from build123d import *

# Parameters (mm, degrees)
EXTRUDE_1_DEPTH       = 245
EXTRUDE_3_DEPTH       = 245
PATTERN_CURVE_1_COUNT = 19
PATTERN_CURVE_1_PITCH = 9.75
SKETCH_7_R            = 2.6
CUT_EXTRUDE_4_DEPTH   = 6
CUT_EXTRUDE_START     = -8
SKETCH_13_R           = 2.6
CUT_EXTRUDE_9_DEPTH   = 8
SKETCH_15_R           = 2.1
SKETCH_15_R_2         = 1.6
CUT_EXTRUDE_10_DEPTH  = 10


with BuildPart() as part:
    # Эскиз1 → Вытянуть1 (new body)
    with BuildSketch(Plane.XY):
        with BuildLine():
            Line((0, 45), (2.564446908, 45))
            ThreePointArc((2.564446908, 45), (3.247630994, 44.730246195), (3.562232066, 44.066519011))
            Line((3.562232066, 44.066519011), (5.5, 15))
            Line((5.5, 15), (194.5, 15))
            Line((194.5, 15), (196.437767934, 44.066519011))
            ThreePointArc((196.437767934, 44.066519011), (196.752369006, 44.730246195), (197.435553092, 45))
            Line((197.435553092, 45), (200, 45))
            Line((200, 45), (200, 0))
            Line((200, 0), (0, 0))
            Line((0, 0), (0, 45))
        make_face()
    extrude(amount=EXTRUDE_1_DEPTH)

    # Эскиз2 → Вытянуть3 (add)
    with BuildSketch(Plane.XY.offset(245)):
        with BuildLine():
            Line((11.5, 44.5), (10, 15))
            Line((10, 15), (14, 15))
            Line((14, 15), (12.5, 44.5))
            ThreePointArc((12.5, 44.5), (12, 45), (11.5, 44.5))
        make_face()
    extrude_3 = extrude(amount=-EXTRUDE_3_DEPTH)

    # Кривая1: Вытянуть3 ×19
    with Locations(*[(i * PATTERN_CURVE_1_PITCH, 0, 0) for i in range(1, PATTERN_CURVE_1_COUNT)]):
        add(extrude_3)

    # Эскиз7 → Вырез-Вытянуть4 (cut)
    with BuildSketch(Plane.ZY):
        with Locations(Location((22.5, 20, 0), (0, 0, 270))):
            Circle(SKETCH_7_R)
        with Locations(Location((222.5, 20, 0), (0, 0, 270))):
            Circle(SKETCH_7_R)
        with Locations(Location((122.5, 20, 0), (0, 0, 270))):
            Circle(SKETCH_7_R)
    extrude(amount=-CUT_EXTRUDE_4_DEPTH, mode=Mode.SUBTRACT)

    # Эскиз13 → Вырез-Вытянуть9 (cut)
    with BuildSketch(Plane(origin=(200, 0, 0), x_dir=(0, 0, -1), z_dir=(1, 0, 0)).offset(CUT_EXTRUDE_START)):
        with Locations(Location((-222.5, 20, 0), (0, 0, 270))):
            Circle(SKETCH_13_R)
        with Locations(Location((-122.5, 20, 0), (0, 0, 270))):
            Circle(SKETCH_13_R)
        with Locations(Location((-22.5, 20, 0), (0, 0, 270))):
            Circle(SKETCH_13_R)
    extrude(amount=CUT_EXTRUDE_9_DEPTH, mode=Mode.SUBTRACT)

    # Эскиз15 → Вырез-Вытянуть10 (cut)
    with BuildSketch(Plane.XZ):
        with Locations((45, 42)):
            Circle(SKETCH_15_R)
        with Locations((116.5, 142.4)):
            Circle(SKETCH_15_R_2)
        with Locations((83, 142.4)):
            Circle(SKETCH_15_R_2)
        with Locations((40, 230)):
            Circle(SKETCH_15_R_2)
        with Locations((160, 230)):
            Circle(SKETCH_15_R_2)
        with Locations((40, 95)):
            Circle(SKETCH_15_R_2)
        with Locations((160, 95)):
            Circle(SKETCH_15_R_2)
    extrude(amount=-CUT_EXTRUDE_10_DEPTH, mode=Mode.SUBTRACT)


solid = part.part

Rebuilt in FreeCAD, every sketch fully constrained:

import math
import FreeCAD as App
import Part
import Sketcher
Q = App.Units.Quantity

doc = App.newDocument("Part")
body = doc.addObject("PartDesign::Body", "Body")

# Sketch on XY plane
sketch1 = body.newObject("Sketcher::SketchObject", "Sketch")
sketch1.AttachmentSupport = (doc.getObject("XY_Plane"), [""])
sketch1.MapMode = "FlatFace"
sketch1.addGeometry(Part.LineSegment(App.Vector(2.6, 45, 0), App.Vector(0, 45, 0)), False)
sketch1.addGeometry(Part.LineSegment(App.Vector(0, 45, 0), App.Vector(0, 0, 0)), False)
sketch1.addGeometry(Part.LineSegment(App.Vector(0, 0, 0), App.Vector(200, 0, 0)), False)
sketch1.addGeometry(Part.LineSegment(App.Vector(200, 0, 0), App.Vector(200, 45, 0)), False)
sketch1.addGeometry(Part.LineSegment(App.Vector(200, 45, 0), App.Vector(197.4, 45, 0)), False)
sketch1.addGeometry(Part.ArcOfCircle(Part.Circle(App.Vector(197.4, 44, 0), App.Vector(0, 0, 1), 1), math.radians(90), math.radians(176)), False)
sketch1.addGeometry(Part.LineSegment(App.Vector(196.4, 44.1, 0), App.Vector(194.5, 15, 0)), False)
sketch1.addGeometry(Part.LineSegment(App.Vector(194.5, 15, 0), App.Vector(5.5, 15, 0)), False)
sketch1.addGeometry(Part.LineSegment(App.Vector(5.5, 15, 0), App.Vector(3.6, 44.1, 0)), False)
sketch1.addGeometry(Part.ArcOfCircle(Part.Circle(App.Vector(2.6, 44, 0), App.Vector(0, 0, 1), 1), math.radians(4), math.radians(90)), False)
sketch1.addConstraint(Sketcher.Constraint("Coincident", 0, 2, 1, 1))
sketch1.addConstraint(Sketcher.Constraint("Coincident", 1, 2, 2, 1))
sketch1.addConstraint(Sketcher.Constraint("Coincident", 2, 2, 3, 1))
sketch1.addConstraint(Sketcher.Constraint("Coincident", 3, 2, 4, 1))
sketch1.addConstraint(Sketcher.Constraint("Tangent", 4, 2, 5, 1))
sketch1.addConstraint(Sketcher.Constraint("Tangent", 5, 2, 6, 1))
sketch1.addConstraint(Sketcher.Constraint("Coincident", 6, 2, 7, 1))
sketch1.addConstraint(Sketcher.Constraint("Coincident", 7, 2, 8, 1))
sketch1.addConstraint(Sketcher.Constraint("Tangent", 8, 2, 9, 1))
sketch1.addConstraint(Sketcher.Constraint("Tangent", 9, 2, 0, 1))
sketch1.addConstraint(Sketcher.Constraint("Horizontal", 0))
sketch1.addConstraint(Sketcher.Constraint("Vertical", 1))
sketch1.addConstraint(Sketcher.Constraint("Horizontal", 2))
sketch1.addConstraint(Sketcher.Constraint("Vertical", 3))
sketch1.addConstraint(Sketcher.Constraint("Horizontal", 4))
sketch1.addConstraint(Sketcher.Constraint("Horizontal", 7))
sketch1.addConstraint(Sketcher.Constraint("Coincident", 1, 2, -1, 1))
sketch1.addConstraint(Sketcher.Constraint("Equal", 5, 9))
sketch1.addConstraint(Sketcher.Constraint("Horizontal", 5, 3, 9, 3))
sketch1.addConstraint(Sketcher.Constraint("Horizontal", 5, 2, 8, 2))
sketch1.addConstraint(Sketcher.Constraint("Equal", 0, 4))
sketch1.addConstraint(Sketcher.Constraint("Radius", 5, Q("1 mm")))
sketch1.addConstraint(Sketcher.Constraint("DistanceX", 2, 1, 2, 2, Q("200 mm")))
sketch1.addConstraint(Sketcher.Constraint("DistanceX", 7, 2, 7, 1, Q("189 mm")))
sketch1.addConstraint(Sketcher.Constraint("DistanceY", 1, 2, 1, 1, Q("45 mm")))
sketch1.addConstraint(Sketcher.Constraint("DistanceY", -1, 1, 6, 2, Q("15 mm")))
sketch1.addConstraint(Sketcher.Constraint("Distance", 6, Q("29.13104 mm")))
pad1 = body.newObject("PartDesign::Pad", "Pad")
pad1.Profile = sketch1
pad1.Length = 245

# Sketch on XY plane
sketch2 = body.newObject("Sketcher::SketchObject", "Sketch001")
sketch2.AttachmentSupport = (doc.getObject("XY_Plane"), [""])
sketch2.MapMode = "FlatFace"
sketch2.AttachmentOffset = App.Placement(App.Vector(0, 0, 245), App.Rotation())
sketch2.addGeometry(Part.LineSegment(App.Vector(11.5, 44.5, 0), App.Vector(10, 15, 0)), False)
sketch2.addGeometry(Part.LineSegment(App.Vector(10, 15, 0), App.Vector(14, 15, 0)), False)
sketch2.addGeometry(Part.LineSegment(App.Vector(14, 15, 0), App.Vector(12.5, 44.5, 0)), False)
sketch2.addGeometry(Part.ArcOfCircle(Part.Circle(App.Vector(12, 44.5, 0), App.Vector(0, 0, 1), 0.5), math.radians(0), math.radians(180)), False)
sketch2.addConstraint(Sketcher.Constraint("Coincident", 0, 2, 1, 1))
sketch2.addConstraint(Sketcher.Constraint("Coincident", 1, 2, 2, 1))
sketch2.addConstraint(Sketcher.Constraint("Coincident", 2, 2, 3, 1))
sketch2.addConstraint(Sketcher.Constraint("Coincident", 3, 2, 0, 1))
sketch2.addConstraint(Sketcher.Constraint("Horizontal", 1))
sketch2.addConstraint(Sketcher.Constraint("Horizontal", 3, 3, 2, 2))
sketch2.addConstraint(Sketcher.Constraint("Horizontal", 2, 2, 3, 2))
sketch2.addConstraint(Sketcher.Constraint("Equal", 0, 2))
sketch2.addConstraint(Sketcher.Constraint("Radius", 3, Q("0.5 mm")))
sketch2.addConstraint(Sketcher.Constraint("DistanceX", 1, 1, 1, 2, Q("4 mm")))
sketch2.addConstraint(Sketcher.Constraint("DistanceX", -1, 1, 3, 3, Q("12 mm")))
sketch2.addConstraint(Sketcher.Constraint("DistanceY", -1, 1, 0, 2, Q("15 mm")))
sketch2.addConstraint(Sketcher.Constraint("DistanceY", -1, 1, 3, 3, Q("44.5 mm")))
pad2 = body.newObject("PartDesign::Pad", "Pad001")
pad2.Profile = sketch2
pad2.Length = 245
pad2.Reversed = True
doc.recompute()

linearpattern = body.newObject("PartDesign::LinearPattern", "LinearPattern")
linearpattern.Originals = [pad2]
linearpattern.Direction = (doc.getObject("X_Axis"), [""])
linearpattern.Mode = "offset"
linearpattern.Offset = 9.75
linearpattern.Occurrences = 19
body.Tip = linearpattern

# Sketch on YZ plane
sketch3 = body.newObject("Sketcher::SketchObject", "Sketch002")
sketch3.AttachmentSupport = (doc.getObject("YZ_Plane"), [""])
sketch3.MapMode = "FlatFace"
sketch3.addGeometry(Part.Circle(App.Vector(20, 22.5, 0), App.Vector(0, 0, 1), 2.6), False)
sketch3.addGeometry(Part.Circle(App.Vector(20, 222.5, 0), App.Vector(0, 0, 1), 2.6), False)
sketch3.addGeometry(Part.Circle(App.Vector(20, 122.5, 0), App.Vector(0, 0, 1), 2.6), False)
sketch3.addConstraint(Sketcher.Constraint("Equal", 0, 1))
sketch3.addConstraint(Sketcher.Constraint("Equal", 1, 2))
sketch3.addConstraint(Sketcher.Constraint("Vertical", 0, 3, 1, 3))
sketch3.addConstraint(Sketcher.Constraint("Vertical", 1, 3, 2, 3))
sketch3.addConstraint(Sketcher.Constraint("Diameter", 0, Q("5.2 mm")))
sketch3.addConstraint(Sketcher.Constraint("DistanceX", -1, 1, 0, 3, Q("20 mm")))
sketch3.addConstraint(Sketcher.Constraint("DistanceY", 0, 3, 1, 3, Q("200 mm")))
sketch3.addConstraint(Sketcher.Constraint("DistanceY", 0, 3, 2, 3, Q("100 mm")))
sketch3.addConstraint(Sketcher.Constraint("DistanceY", -1, 1, 0, 3, Q("22.5 mm")))
pocket1 = body.newObject("PartDesign::Pocket", "Pocket")
pocket1.Profile = sketch3
pocket1.Length = 6
pocket1.Reversed = True

# Sketch on YZ plane
sketch4 = body.newObject("Sketcher::SketchObject", "Sketch003")
sketch4.AttachmentSupport = (doc.getObject("YZ_Plane"), [""])
sketch4.MapMode = "FlatFace"
sketch4.AttachmentOffset = App.Placement(App.Vector(0, 0, 192), App.Rotation())
sketch4.addGeometry(Part.Circle(App.Vector(20, 222.5, 0), App.Vector(0, 0, 1), 2.6), False)
sketch4.addGeometry(Part.Circle(App.Vector(20, 122.5, 0), App.Vector(0, 0, 1), 2.6), False)
sketch4.addGeometry(Part.Circle(App.Vector(20, 22.5, 0), App.Vector(0, 0, 1), 2.6), False)
sketch4.addConstraint(Sketcher.Constraint("Equal", 0, 1))
sketch4.addConstraint(Sketcher.Constraint("Equal", 1, 2))
sketch4.addConstraint(Sketcher.Constraint("Vertical", 0, 3, 1, 3))
sketch4.addConstraint(Sketcher.Constraint("Vertical", 1, 3, 2, 3))
sketch4.addConstraint(Sketcher.Constraint("Diameter", 0, Q("5.2 mm")))
sketch4.addConstraint(Sketcher.Constraint("DistanceX", -1, 1, 0, 3, Q("20 mm")))
sketch4.addConstraint(Sketcher.Constraint("DistanceY", 1, 3, 0, 3, Q("100 mm")))
sketch4.addConstraint(Sketcher.Constraint("DistanceY", 2, 3, 1, 3, Q("100 mm")))
sketch4.addConstraint(Sketcher.Constraint("DistanceY", -1, 1, 0, 3, Q("222.5 mm")))
pocket2 = body.newObject("PartDesign::Pocket", "Pocket001")
pocket2.Profile = sketch4
pocket2.Length = 8
pocket2.Reversed = True

# Sketch on XZ plane
sketch5 = body.newObject("Sketcher::SketchObject", "Sketch004")
sketch5.AttachmentSupport = (doc.getObject("XZ_Plane"), [""])
sketch5.MapMode = "FlatFace"
sketch5.addGeometry(Part.Circle(App.Vector(45, 42, 0), App.Vector(0, 0, 1), 2.1), False)
sketch5.addGeometry(Part.Circle(App.Vector(116.5, 142.4, 0), App.Vector(0, 0, 1), 1.6), False)
sketch5.addGeometry(Part.Circle(App.Vector(83, 142.4, 0), App.Vector(0, 0, 1), 1.6), False)
sketch5.addGeometry(Part.Circle(App.Vector(40, 230, 0), App.Vector(0, 0, 1), 1.6), False)
sketch5.addGeometry(Part.Circle(App.Vector(160, 230, 0), App.Vector(0, 0, 1), 1.6), False)
sketch5.addGeometry(Part.Circle(App.Vector(40, 95, 0), App.Vector(0, 0, 1), 1.6), False)
sketch5.addGeometry(Part.Circle(App.Vector(160, 95, 0), App.Vector(0, 0, 1), 1.6), False)
sketch5.addConstraint(Sketcher.Constraint("Equal", 1, 2))
sketch5.addConstraint(Sketcher.Constraint("Equal", 2, 3))
sketch5.addConstraint(Sketcher.Constraint("Equal", 3, 4))
sketch5.addConstraint(Sketcher.Constraint("Equal", 4, 5))
sketch5.addConstraint(Sketcher.Constraint("Equal", 5, 6))
sketch5.addConstraint(Sketcher.Constraint("Horizontal", 1, 3, 2, 3))
sketch5.addConstraint(Sketcher.Constraint("Horizontal", 3, 3, 4, 3))
sketch5.addConstraint(Sketcher.Constraint("Horizontal", 5, 3, 6, 3))
sketch5.addConstraint(Sketcher.Constraint("Vertical", 3, 3, 5, 3))
sketch5.addConstraint(Sketcher.Constraint("Vertical", 4, 3, 6, 3))
sketch5.addConstraint(Sketcher.Constraint("Diameter", 0, Q("4.2 mm")))
sketch5.addConstraint(Sketcher.Constraint("Diameter", 1, Q("3.2 mm")))
sketch5.addConstraint(Sketcher.Constraint("DistanceX", -1, 1, 0, 3, Q("45 mm")))
sketch5.addConstraint(Sketcher.Constraint("DistanceY", -1, 1, 0, 3, Q("42 mm")))
sketch5.addConstraint(Sketcher.Constraint("DistanceX", -1, 1, 2, 3, Q("83 mm")))
sketch5.addConstraint(Sketcher.Constraint("DistanceX", -1, 1, 3, 3, Q("40 mm")))
sketch5.addConstraint(Sketcher.Constraint("DistanceY", -1, 1, 3, 3, Q("230 mm")))
sketch5.addConstraint(Sketcher.Constraint("DistanceX", -1, 1, 4, 3, Q("160 mm")))
sketch5.addConstraint(Sketcher.Constraint("DistanceY", -1, 1, 5, 3, Q("95 mm")))
sketch5.addConstraint(Sketcher.Constraint("DistanceX", -1, 1, 1, 3, Q("116.5 mm")))
sketch5.addConstraint(Sketcher.Constraint("DistanceY", -1, 1, 1, 3, Q("142.4 mm")))
pocket3 = body.newObject("PartDesign::Pocket", "Pocket002")
pocket3.Profile = sketch5
pocket3.Length = 10

doc.recompute()
